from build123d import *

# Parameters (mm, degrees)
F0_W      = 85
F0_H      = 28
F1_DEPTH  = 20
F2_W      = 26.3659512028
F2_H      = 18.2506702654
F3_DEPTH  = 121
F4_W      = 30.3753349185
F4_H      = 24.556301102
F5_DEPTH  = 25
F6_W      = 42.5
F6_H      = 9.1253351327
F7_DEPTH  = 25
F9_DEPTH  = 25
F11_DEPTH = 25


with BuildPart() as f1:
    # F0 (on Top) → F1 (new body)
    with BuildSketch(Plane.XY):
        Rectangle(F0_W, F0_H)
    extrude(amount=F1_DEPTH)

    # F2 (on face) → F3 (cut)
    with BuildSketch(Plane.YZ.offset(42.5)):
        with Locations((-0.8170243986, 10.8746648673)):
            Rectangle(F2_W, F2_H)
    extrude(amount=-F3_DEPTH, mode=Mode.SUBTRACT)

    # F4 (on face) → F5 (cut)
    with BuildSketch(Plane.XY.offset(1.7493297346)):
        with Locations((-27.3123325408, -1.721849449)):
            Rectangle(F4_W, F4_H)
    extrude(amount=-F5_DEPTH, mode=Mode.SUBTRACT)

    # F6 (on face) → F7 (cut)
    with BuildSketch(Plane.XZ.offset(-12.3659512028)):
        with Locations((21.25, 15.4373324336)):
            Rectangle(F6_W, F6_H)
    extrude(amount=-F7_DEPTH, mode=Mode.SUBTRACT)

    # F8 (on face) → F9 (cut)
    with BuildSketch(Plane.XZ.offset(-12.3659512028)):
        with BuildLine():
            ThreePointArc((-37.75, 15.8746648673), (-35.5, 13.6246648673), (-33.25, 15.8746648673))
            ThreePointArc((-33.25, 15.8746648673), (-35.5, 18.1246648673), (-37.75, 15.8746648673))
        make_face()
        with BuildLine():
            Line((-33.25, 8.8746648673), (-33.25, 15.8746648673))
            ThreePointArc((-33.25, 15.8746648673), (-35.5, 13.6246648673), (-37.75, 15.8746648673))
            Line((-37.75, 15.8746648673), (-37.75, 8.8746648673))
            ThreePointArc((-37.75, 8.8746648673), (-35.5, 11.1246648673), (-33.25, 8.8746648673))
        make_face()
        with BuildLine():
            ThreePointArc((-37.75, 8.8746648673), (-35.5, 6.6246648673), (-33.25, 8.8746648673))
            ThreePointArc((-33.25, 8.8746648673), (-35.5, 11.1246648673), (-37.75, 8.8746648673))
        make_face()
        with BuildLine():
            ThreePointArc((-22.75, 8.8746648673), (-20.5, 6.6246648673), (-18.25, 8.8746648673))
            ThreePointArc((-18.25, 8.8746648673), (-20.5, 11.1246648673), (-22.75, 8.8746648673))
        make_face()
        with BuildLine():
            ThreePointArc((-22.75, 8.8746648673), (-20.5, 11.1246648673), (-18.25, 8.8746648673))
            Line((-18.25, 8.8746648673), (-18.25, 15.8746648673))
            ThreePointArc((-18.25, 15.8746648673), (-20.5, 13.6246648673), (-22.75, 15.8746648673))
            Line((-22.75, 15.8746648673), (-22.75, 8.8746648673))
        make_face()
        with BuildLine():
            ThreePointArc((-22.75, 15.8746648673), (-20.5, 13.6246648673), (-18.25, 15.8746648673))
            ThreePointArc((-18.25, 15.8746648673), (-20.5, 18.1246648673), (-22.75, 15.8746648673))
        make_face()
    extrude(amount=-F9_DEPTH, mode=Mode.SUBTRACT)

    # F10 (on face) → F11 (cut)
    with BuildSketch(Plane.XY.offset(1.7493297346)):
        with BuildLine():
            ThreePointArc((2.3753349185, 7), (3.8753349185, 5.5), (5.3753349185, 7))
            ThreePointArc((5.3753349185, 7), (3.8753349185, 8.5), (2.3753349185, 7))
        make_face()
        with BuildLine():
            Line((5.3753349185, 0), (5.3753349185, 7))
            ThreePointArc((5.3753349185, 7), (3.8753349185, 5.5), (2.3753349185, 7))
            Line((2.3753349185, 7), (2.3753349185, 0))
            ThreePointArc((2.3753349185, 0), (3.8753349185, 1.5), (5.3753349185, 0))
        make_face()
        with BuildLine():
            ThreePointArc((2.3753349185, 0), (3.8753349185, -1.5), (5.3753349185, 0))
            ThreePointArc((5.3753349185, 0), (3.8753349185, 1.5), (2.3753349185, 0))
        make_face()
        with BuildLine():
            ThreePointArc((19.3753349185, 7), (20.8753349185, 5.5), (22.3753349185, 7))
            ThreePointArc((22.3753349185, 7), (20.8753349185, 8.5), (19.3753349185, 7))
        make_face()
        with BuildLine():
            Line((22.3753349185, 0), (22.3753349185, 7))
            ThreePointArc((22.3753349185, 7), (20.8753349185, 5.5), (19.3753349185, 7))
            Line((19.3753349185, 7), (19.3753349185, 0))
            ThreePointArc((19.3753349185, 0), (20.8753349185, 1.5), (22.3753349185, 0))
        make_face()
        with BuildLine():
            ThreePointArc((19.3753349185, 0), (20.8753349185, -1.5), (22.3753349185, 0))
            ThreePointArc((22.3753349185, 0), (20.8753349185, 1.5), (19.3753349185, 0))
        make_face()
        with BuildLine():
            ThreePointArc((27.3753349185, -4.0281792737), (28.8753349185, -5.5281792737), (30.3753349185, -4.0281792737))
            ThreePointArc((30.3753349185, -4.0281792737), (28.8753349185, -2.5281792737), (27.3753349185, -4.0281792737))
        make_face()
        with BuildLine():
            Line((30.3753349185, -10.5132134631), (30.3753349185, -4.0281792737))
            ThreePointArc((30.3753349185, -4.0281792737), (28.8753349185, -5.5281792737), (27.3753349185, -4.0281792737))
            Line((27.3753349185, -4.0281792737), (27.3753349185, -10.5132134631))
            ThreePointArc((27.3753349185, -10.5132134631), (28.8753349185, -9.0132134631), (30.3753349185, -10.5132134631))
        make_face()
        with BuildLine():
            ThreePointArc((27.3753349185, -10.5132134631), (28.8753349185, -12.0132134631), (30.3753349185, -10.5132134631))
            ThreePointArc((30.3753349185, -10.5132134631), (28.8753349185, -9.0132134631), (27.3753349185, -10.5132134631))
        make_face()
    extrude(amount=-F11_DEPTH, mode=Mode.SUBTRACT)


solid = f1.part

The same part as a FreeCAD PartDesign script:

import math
import FreeCAD as App
import Part
import Sketcher

V = App.Vector
Q = App.Units.Quantity

doc = App.newDocument("Part")
body = doc.addObject("PartDesign::Body", "Body")

# Sketch on XY plane
sketch1 = body.newObject("Sketcher::SketchObject", "Sketch")
sketch1.AttachmentSupport = (doc.getObject("XY_Plane"), [""])
sketch1.MapMode = "FlatFace"
sketch1.addGeometry(Part.LineSegment(V(-42, 14, 0), V(-42, -14, 0)), False)
sketch1.addGeometry(Part.LineSegment(V(-42, -14, 0), V(42, -14, 0)), False)
sketch1.addGeometry(Part.LineSegment(V(42, -14, 0), V(42, 14, 0)), False)
sketch1.addGeometry(Part.LineSegment(V(42, 14, 0), V(-42, 14, 0)), False)
sketch1.addConstraint(Sketcher.Constraint("Coincident", 0, 2, 1, 1))
sketch1.addConstraint(Sketcher.Constraint("Coincident", 1, 2, 2, 1))
sketch1.addConstraint(Sketcher.Constraint("Coincident", 2, 2, 3, 1))
sketch1.addConstraint(Sketcher.Constraint("Coincident", 3, 2, 0, 1))
sketch1.addConstraint(Sketcher.Constraint("Vertical", 0))
sketch1.addConstraint(Sketcher.Constraint("Horizontal", 1))
sketch1.addConstraint(Sketcher.Constraint("Vertical", 2))
sketch1.addConstraint(Sketcher.Constraint("Horizontal", 3))
sketch1.addConstraint(Sketcher.Constraint("Symmetric", 0, 2, 2, 2, -1, 1))
sketch1.addConstraint(Sketcher.Constraint("DistanceX", 1, 1, 1, 2, Q("85 mm")))
sketch1.addConstraint(Sketcher.Constraint("DistanceY", 0, 2, 0, 1, Q("28 mm")))
pad1 = body.newObject("PartDesign::Pad", "Pad")
pad1.Profile = sketch1
pad1.Length = 20

# Sketch on YZ plane
sketch2 = body.newObject("Sketcher::SketchObject", "Sketch001")
sketch2.AttachmentSupport = (doc.getObject("YZ_Plane"), [""])
sketch2.MapMode = "FlatFace"
sketch2.AttachmentOffset = App.Placement(V(0, 0, 42.5), App.Rotation())
sketch2.addGeometry(Part.LineSegment(V(-14, 20, 0), V(-14, 2, 0)), False)
sketch2.addGeometry(Part.LineSegment(V(-14, 2, 0), V(12, 2, 0)), False)
sketch2.addGeometry(Part.LineSegment(V(12, 2, 0), V(12, 20, 0)), False)
sketch2.addGeometry(Part.LineSegment(V(12, 20, 0), V(-14, 20, 0)), False)
sketch2.addConstraint(Sketcher.Constraint("Coincident", 0, 2, 1, 1))
sketch2.addConstraint(Sketcher.Constraint("Coincident", 1, 2, 2, 1))
sketch2.addConstraint(Sketcher.Constraint("Coincident", 2, 2, 3, 1))
sketch2.addConstraint(Sketcher.Constraint("Coincident", 3, 2, 0, 1))
sketch2.addConstraint(Sketcher.Constraint("Vertical", 0))
sketch2.addConstraint(Sketcher.Constraint("Horizontal", 1))
sketch2.addConstraint(Sketcher.Constraint("Vertical", 2))
sketch2.addConstraint(Sketcher.Constraint("Horizontal", 3))
sketch2.addConstraint(Sketcher.Constraint("DistanceX", 0, 2, -1, 1, Q("14 mm")))
sketch2.addConstraint(Sketcher.Constraint("DistanceY", -1, 1, 2, 2, Q("20 mm")))
sketch2.addConstraint(Sketcher.Constraint("DistanceX", 1, 1, 1, 2, Q("26.365951 mm")))
sketch2.addConstraint(Sketcher.Constraint("DistanceY", 0, 2, 0, 1, Q("18.25067 mm")))
pocket1 = body.newObject("PartDesign::Pocket", "Pocket")
pocket1.Profile = sketch2
pocket1.Length = 121

# Sketch on XY plane
sketch3 = body.newObject("Sketcher::SketchObject", "Sketch002")
sketch3.AttachmentSupport = (doc.getObject("XY_Plane"), [""])
sketch3.MapMode = "FlatFace"
sketch3.AttachmentOffset = App.Placement(V(0, 0, 1.74933), App.Rotation())
sketch3.addGeometry(Part.LineSegment(V(-42, 11, 0), V(-42, -14, 0)), False)
sketch3.addGeometry(Part.LineSegment(V(-42, -14, 0), V(-12, -14, 0)), False)
sketch3.addGeometry(Part.LineSegment(V(-12, -14, 0), V(-12, 11, 0)), False)
sketch3.addGeometry(Part.LineSegment(V(-12, 11, 0), V(-42, 11, 0)), False)
sketch3.addConstraint(Sketcher.Constraint("Coincident", 0, 2, 1, 1))
sketch3.addConstraint(Sketcher.Constraint("Coincident", 1, 2, 2, 1))
sketch3.addConstraint(Sketcher.Constraint("Coincident", 2, 2, 3, 1))
sketch3.addConstraint(Sketcher.Constraint("Coincident", 3, 2, 0, 1))
sketch3.addConstraint(Sketcher.Constraint("Vertical", 0))
sketch3.addConstraint(Sketcher.Constraint("Horizontal", 1))
sketch3.addConstraint(Sketcher.Constraint("Vertical", 2))
sketch3.addConstraint(Sketcher.Constraint("Horizontal", 3))
sketch3.addConstraint(Sketcher.Constraint("DistanceY", 0, 2, -1, 1, Q("14 mm")))
sketch3.addConstraint(Sketcher.Constraint("DistanceX", 0, 2, -1, 1, Q("42.5 mm")))
sketch3.addConstraint(Sketcher.Constraint("DistanceY", 0, 2, 0, 1, Q("24.556301 mm")))
sketch3.addConstraint(Sketcher.Constraint("DistanceX", 1, 1, 1, 2, Q("30.375335 mm")))
pocket2 = body.newObject("PartDesign::Pocket", "Pocket001")
pocket2.Profile = sketch3
pocket2.Length = 25

# Sketch on XZ plane
sketch4 = body.newObject("Sketcher::SketchObject", "Sketch003")
sketch4.AttachmentSupport = (doc.getObject("XZ_Plane"), [""])
sketch4.MapMode = "FlatFace"
sketch4.AttachmentOffset = App.Placement(V(0, 0, -12.365951), App.Rotation())
sketch4.addGeometry(Part.LineSegment(V(0, 20, 0), V(0, 11, 0)), False)
sketch4.addGeometry(Part.LineSegment(V(0, 11, 0), V(42, 11, 0)), False)
sketch4.addGeometry(Part.LineSegment(V(42, 11, 0), V(42, 20, 0)), False)
sketch4.addGeometry(Part.LineSegment(V(42, 20, 0), V(0, 20, 0)), False)
sketch4.addConstraint(Sketcher.Constraint("Coincident", 0, 2, 1, 1))
sketch4.addConstraint(Sketcher.Constraint("Coincident", 1, 2, 2, 1))
sketch4.addConstraint(Sketcher.Constraint("Coincident", 2, 2, 3, 1))
sketch4.addConstraint(Sketcher.Constraint("Coincident", 3, 2, 0, 1))
sketch4.addConstraint(Sketcher.Constraint("Vertical", 0))
sketch4.addConstraint(Sketcher.Constraint("Horizontal", 1))
sketch4.addConstraint(Sketcher.Constraint("Vertical", 2))
sketch4.addConstraint(Sketcher.Constraint("Horizontal", 3))
sketch4.addConstraint(Sketcher.Constraint("PointOnObject", 0, 2, -2))
sketch4.addConstraint(Sketcher.Constraint("DistanceX", 1, 1, 1, 2, Q("42.5 mm")))
sketch4.addConstraint(Sketcher.Constraint("DistanceY", -1, 1, 2, 2, Q("20 mm")))
sketch4.addConstraint(Sketcher.Constraint("DistanceY", 0, 2, 0, 1, Q("9.125335 mm")))
pocket3 = body.newObject("PartDesign::Pocket", "Pocket002")
pocket3.Profile = sketch4
pocket3.Length = 25

# Sketch on XZ plane
sketch5 = body.newObject("Sketcher::SketchObject", "Sketch004")
sketch5.AttachmentSupport = (doc.getObject("XZ_Plane"), [""])
sketch5.MapMode = "FlatFace"
sketch5.AttachmentOffset = App.Placement(V(0, 0, -12.365951), App.Rotation())
sketch5.addGeometry(Part.ArcOfCircle(Part.Circle(V(-35.5, 15.9, 0), V(0, 0, 1), 2.2), math.radians(0), math.radians(180)), False)
sketch5.addGeometry(Part.LineSegment(V(-37.8, 15.9, 0), V(-37.8, 8.9, 0)), False)
sketch5.addGeometry(Part.ArcOfCircle(Part.Circle(V(-35.5, 8.9, 0), V(0, 0, 1), 2.2), math.radians(180), math.radians(360)), False)
sketch5.addGeometry(Part.LineSegment(V(-33.2, 8.9, 0), V(-33.2, 15.9, 0)), False)
sketch5.addGeometry(Part.ArcOfCircle(Part.Circle(V(-20.5, 8.9, 0), V(0, 0, 1), 2.2), math.radians(180), math.radians(360)), False)
sketch5.addGeometry(Part.LineSegment(V(-18.2, 8.9, 0), V(-18.2, 15.9, 0)), False)
sketch5.addGeometry(Part.ArcOfCircle(Part.Circle(V(-20.5, 15.9, 0), V(0, 0, 1), 2.2), math.radians(0), math.radians(180)), False)
sketch5.addGeometry(Part.LineSegment(V(-22.8, 15.9, 0), V(-22.8, 8.9, 0)), False)
sketch5.addConstraint(Sketcher.Constraint("Tangent", 0, 2, 1, 1))
sketch5.addConstraint(Sketcher.Constraint("Tangent", 1, 2, 2, 1))
sketch5.addConstraint(Sketcher.Constraint("Tangent", 2, 2, 3, 1))
sketch5.addConstraint(Sketcher.Constraint("Tangent", 3, 2, 0, 1))
sketch5.addConstraint(Sketcher.Constraint("Tangent", 4, 2, 5, 1))
sketch5.addConstraint(Sketcher.Constraint("Tangent", 5, 2, 6, 1))
sketch5.addConstraint(Sketcher.Constraint("Tangent", 6, 2, 7, 1))
sketch5.addConstraint(Sketcher.Constraint("Tangent", 7, 2, 4, 1))
sketch5.addConstraint(Sketcher.Constraint("Vertical", 1))
sketch5.addConstraint(Sketcher.Constraint("Vertical", 3))
sketch5.addConstraint(Sketcher.Constraint("Vertical", 5))
sketch5.addConstraint(Sketcher.Constraint("Vertical", 7))
sketch5.addConstraint(Sketcher.Constraint("Equal", 2, 4))
sketch5.addConstraint(Sketcher.Constraint("Horizontal", 2, 3, 4, 3))
sketch5.addConstraint(Sketcher.Constraint("Horizontal", 0, 3, 6, 3))
sketch5.addConstraint(Sketcher.Constraint("DistanceY", 1, 2, 1, 1, Q("7 mm")))
sketch5.addConstraint(Sketcher.Constraint("Radius", 0, Q("2.25 mm")))
sketch5.addConstraint(Sketcher.Constraint("DistanceX", 2, 3, 4, 3, Q("15 mm")))
sketch5.addConstraint(Sketcher.Constraint("DistanceX", 0, 3, -1, 1, Q("35.5 mm")))
sketch5.addConstraint(Sketcher.Constraint("DistanceY", -1, 1, 0, 3, Q("15.874665 mm")))
pocket4 = body.newObject("PartDesign::Pocket", "Pocket003")
pocket4.Profile = sketch5
pocket4.Length = 25

# Sketch on XY plane
sketch6 = body.newObject("Sketcher::SketchObject", "Sketch005")
sketch6.AttachmentSupport = (doc.getObject("XY_Plane"), [""])
sketch6.MapMode = "FlatFace"
sketch6.AttachmentOffset = App.Placement(V(0, 0, 1.74933), App.Rotation())
sketch6.addGeometry(Part.ArcOfCircle(Part.Circle(V(3.9, 7, 0), V(0, 0, 1), 1.5), math.radians(0), math.radians(180)), False)
sketch6.addGeometry(Part.LineSegment(V(2.4, 7, 0), V(2.4, 0, 0)), False)
sketch6.addGeometry(Part.ArcOfCircle(Part.Circle(V(3.9, 0, 0), V(0, 0, 1), 1.5), math.radians(180), math.radians(360)), False)
sketch6.addGeometry(Part.LineSegment(V(5.4, 0, 0), V(5.4, 7, 0)), False)
sketch6.addGeometry(Part.ArcOfCircle(Part.Circle(V(20.9, 7, 0), V(0, 0, 1), 1.5), math.radians(0), math.radians(180)), False)
sketch6.addGeometry(Part.LineSegment(V(19.4, 7, 0), V(19.4, 0, 0)), False)
sketch6.addGeometry(Part.ArcOfCircle(Part.Circle(V(20.9, 0, 0), V(0, 0, 1), 1.5), math.radians(180), math.radians(360)), False)
sketch6.addGeometry(Part.LineSegment(V(22.4, 0, 0), V(22.4, 7, 0)), False)
sketch6.addGeometry(Part.ArcOfCircle(Part.Circle(V(28.9, -4, 0), V(0, 0, 1), 1.5), math.radians(0), math.radians(180)), False)
sketch6.addGeometry(Part.LineSegment(V(27.4, -4, 0), V(27.4, -10.5, 0)), False)
sketch6.addGeometry(Part.ArcOfCircle(Part.Circle(V(28.9, -10.5, 0), V(0, 0, 1), 1.5), math.radians(180), math.radians(360)), False)
sketch6.addGeometry(Part.LineSegment(V(30.4, -10.5, 0), V(30.4, -4, 0)), False)
sketch6.addConstraint(Sketcher.Constraint("Tangent", 0, 2, 1, 1))
sketch6.addConstraint(Sketcher.Constraint("Tangent", 1, 2, 2, 1))
sketch6.addConstraint(Sketcher.Constraint("Tangent", 2, 2, 3, 1))
sketch6.addConstraint(Sketcher.Constraint("Tangent", 3, 2, 0, 1))
sketch6.addConstraint(Sketcher.Constraint("Tangent", 4, 2, 5, 1))
sketch6.addConstraint(Sketcher.Constraint("Tangent", 5, 2, 6, 1))
sketch6.addConstraint(Sketcher.Constraint("Tangent", 6, 2, 7, 1))
sketch6.addConstraint(Sketcher.Constraint("Tangent", 7, 2, 4, 1))
sketch6.addConstraint(Sketcher.Constraint("Tangent", 8, 2, 9, 1))
sketch6.addConstraint(Sketcher.Constraint("Tangent", 9, 2, 10, 1))
sketch6.addConstraint(Sketcher.Constraint("Tangent", 10, 2, 11, 1))
sketch6.addConstraint(Sketcher.Constraint("Tangent", 11, 2, 8, 1))
sketch6.addConstraint(Sketcher.Constraint("Vertical", 1))
sketch6.addConstraint(Sketcher.Constraint("Vertical", 3))
sketch6.addConstraint(Sketcher.Constraint("Vertical", 5))
sketch6.addConstraint(Sketcher.Constraint("Vertical", 7))
sketch6.addConstraint(Sketcher.Constraint("Vertical", 9))
sketch6.addConstraint(Sketcher.Constraint("Vertical", 11))
sketch6.addConstraint(Sketcher.Constraint("Equal", 2, 4))
sketch6.addConstraint(Sketcher.Constraint("Equal", 6, 8))
sketch6.addConstraint(Sketcher.Constraint("PointOnObject", 2, 3, -1))
sketch6.addConstraint(Sketcher.Constraint("PointOnObject", 6, 3, -1))
sketch6.addConstraint(Sketcher.Constraint("Horizontal", 0, 3, 4, 3))
sketch6.addConstraint(Sketcher.Constraint("Radius", 0, Q("1.5 mm")))
sketch6.addConstraint(Sketcher.Constraint("DistanceY", 1, 2, 1, 1, Q("7 mm")))
sketch6.addConstraint(Sketcher.Constraint("DistanceX", 0, 3, 4, 3, Q("17 mm")))
sketch6.addConstraint(Sketcher.Constraint("DistanceX", 6, 3, 8, 3, Q("8 mm")))
sketch6.addConstraint(Sketcher.Constraint("DistanceY", 9, 2, 9, 1, Q("6.485034 mm")))
sketch6.addConstraint(Sketcher.Constraint("DistanceY", 8, 3, -1, 1, Q("4.028179 mm")))
sketch6.addConstraint(Sketcher.Constraint("DistanceX", -1, 1, 0, 3, Q("3.875335 mm")))
pocket5 = body.newObject("PartDesign::Pocket", "Pocket004")
pocket5.Profile = sketch6
pocket5.Length = 25

doc.recompute()
